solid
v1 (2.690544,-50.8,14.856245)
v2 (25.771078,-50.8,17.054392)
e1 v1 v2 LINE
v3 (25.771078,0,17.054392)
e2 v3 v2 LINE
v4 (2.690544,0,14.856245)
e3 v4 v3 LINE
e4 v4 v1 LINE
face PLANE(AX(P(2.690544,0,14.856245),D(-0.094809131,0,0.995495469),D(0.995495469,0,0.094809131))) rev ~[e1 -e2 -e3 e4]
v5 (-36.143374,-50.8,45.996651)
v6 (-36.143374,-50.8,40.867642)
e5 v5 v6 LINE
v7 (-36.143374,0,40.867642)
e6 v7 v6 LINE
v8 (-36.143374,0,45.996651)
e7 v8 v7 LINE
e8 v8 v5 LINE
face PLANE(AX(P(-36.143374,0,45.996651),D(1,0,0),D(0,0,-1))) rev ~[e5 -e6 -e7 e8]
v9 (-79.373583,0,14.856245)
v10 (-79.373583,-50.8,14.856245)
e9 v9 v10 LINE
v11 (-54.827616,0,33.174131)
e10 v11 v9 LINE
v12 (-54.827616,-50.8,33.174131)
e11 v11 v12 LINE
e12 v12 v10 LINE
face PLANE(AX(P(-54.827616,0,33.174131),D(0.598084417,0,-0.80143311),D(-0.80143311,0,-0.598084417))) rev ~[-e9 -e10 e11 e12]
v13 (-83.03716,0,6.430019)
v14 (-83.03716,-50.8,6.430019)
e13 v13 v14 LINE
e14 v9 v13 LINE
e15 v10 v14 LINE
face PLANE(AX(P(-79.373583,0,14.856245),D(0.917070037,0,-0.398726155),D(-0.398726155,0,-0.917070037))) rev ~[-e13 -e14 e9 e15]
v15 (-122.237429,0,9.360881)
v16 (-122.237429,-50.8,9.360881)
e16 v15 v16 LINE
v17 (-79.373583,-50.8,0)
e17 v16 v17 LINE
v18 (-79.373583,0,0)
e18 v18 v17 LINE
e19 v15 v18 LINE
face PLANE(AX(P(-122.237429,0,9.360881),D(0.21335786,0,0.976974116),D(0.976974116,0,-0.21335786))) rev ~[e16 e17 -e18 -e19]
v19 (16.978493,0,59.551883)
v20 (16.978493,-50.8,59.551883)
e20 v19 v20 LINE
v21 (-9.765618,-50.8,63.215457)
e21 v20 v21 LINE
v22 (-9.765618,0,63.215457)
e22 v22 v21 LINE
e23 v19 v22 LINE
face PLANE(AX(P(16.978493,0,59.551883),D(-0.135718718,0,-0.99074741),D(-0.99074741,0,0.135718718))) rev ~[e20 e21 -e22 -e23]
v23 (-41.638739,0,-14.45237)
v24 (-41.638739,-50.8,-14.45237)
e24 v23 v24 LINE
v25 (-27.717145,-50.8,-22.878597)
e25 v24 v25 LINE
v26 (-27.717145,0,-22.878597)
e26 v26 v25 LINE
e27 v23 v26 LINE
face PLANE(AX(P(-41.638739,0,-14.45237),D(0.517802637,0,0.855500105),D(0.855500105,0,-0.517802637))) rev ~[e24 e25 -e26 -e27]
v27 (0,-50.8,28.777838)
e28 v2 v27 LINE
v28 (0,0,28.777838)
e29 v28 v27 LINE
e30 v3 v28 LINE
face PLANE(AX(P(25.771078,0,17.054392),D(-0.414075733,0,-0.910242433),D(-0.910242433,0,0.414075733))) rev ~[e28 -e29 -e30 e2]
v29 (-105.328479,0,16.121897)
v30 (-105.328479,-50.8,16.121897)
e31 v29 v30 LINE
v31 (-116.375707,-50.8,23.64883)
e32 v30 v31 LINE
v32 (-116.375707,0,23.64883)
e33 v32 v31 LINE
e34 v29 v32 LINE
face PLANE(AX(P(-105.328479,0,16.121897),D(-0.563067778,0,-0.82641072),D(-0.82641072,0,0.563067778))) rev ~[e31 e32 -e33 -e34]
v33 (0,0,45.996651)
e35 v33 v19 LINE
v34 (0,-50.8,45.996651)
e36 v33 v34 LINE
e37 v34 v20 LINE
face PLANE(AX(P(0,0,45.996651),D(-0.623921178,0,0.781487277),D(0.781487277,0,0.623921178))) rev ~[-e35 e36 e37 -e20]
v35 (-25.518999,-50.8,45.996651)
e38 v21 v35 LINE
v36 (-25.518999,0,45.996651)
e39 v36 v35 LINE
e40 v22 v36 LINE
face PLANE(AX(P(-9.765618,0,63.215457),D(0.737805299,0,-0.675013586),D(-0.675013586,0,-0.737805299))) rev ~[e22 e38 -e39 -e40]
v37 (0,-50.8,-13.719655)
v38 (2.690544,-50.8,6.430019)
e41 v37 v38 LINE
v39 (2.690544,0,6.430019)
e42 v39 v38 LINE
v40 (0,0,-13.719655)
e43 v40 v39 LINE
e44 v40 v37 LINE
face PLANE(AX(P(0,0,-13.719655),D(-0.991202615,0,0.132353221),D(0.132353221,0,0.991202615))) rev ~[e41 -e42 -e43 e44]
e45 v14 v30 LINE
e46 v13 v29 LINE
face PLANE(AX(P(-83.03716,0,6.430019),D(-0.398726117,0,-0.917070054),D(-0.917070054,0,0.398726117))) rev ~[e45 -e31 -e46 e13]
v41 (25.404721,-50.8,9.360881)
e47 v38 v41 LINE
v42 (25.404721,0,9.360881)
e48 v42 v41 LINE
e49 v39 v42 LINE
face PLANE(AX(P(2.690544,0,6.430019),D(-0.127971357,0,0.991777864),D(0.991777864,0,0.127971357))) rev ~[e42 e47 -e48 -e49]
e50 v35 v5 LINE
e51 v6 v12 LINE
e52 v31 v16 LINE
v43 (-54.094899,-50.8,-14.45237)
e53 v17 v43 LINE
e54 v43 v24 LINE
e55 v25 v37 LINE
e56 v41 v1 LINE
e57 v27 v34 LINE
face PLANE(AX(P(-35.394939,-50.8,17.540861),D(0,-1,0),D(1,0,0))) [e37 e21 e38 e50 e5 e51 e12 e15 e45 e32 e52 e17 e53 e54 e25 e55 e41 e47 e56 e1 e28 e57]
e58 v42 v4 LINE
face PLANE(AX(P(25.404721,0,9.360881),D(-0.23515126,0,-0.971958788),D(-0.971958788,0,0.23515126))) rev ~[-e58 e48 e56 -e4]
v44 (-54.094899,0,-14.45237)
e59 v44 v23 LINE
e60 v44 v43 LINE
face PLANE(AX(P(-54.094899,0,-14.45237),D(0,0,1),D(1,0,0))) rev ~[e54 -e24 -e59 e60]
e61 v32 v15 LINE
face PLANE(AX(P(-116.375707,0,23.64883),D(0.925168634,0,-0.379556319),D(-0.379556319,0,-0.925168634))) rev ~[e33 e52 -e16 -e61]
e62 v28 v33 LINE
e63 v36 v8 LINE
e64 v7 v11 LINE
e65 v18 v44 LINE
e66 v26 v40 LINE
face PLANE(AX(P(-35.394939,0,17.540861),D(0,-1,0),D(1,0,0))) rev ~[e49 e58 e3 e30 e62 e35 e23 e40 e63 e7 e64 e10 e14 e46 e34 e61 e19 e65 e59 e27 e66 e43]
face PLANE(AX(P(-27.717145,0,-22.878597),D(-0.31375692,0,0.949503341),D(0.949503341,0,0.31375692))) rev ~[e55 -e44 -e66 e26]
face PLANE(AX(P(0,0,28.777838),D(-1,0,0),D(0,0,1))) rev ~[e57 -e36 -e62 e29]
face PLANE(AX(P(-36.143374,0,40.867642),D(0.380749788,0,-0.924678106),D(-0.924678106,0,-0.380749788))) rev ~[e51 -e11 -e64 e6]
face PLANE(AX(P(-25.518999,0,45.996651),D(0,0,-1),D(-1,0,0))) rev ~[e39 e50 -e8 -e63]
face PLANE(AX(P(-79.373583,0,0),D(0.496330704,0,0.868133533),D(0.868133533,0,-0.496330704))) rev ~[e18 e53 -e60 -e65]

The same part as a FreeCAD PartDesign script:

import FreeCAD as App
import Part
import Sketcher
from FreeCAD import Vector
Q = App.Units.Quantity


def add_polygon(sketch, points):
    """Adds a closed chain of lines whose ends are joined by coincident constraints."""
    first, n = sketch.GeometryCount, len(points)
    for a, b in zip(points, points[1:] + points[:1]):
        sketch.addGeometry(Part.LineSegment(App.Vector(*a, 0), App.Vector(*b, 0)), False)
    for i in range(n):
        sketch.addConstraint(Sketcher.Constraint("Coincident", first + i, 2, first + (i + 1) % n, 1))

doc = App.newDocument("Part")
body = doc.addObject("PartDesign::Body", "Body")

# Sketch on XZ plane
sketch1 = body.newObject("Sketcher::SketchObject", "Sketch")
sketch1.AttachmentSupport = (doc.getObject("XZ_Plane"), [""])
sketch1.MapMode = "FlatFace"
add_polygon(sketch1, [(3, 15), (26, 17), (0, 29), (0, 46), (17, 60), (-10, 63), (-26, 46), (-36, 46), (-36, 41), (-55, 33), (-79, 15), (-83, 6), (-105, 16), (-116, 24), (-122, 9), (-79, 0), (-54, -14), (-42, -14), (-28, -23), (0, -14), (3, 6), (25, 9)])  # lines 0-21
sketch1.addConstraint([
    Sketcher.Constraint("Vertical", 2),
    Sketcher.Constraint("Horizontal", 6),
    Sketcher.Constraint("Vertical", 7),
    Sketcher.Constraint("Horizontal", 16),
    Sketcher.Constraint("PointOnObject", 1, 2, -2),
    Sketcher.Constraint("PointOnObject", 14, 2, -1),
    Sketcher.Constraint("PointOnObject", 18, 2, -2),
    Sketcher.Constraint("Perpendicular", 10, 11),
    Sketcher.Constraint("Horizontal", 2, 2, 5, 2),
    Sketcher.Constraint("Horizontal", 10, 2, 19, 2),
    Sketcher.Constraint("Horizontal", 13, 2, 20, 2),
    Sketcher.Constraint("Horizontal", 9, 2, 21, 2),
    Sketcher.Constraint("Vertical", 9, 2, 14, 2),
    Sketcher.Constraint("Vertical", 19, 2, 21, 2),
    Sketcher.Constraint("DistanceX", 16, 1, 16, 2, Q("0.4904 in")),
    Sketcher.Constraint("DistanceX", 8, 2, 7, 2, Q("0.7356001 in")),
    Sketcher.Constraint("DistanceY", 7, 2, 7, 1, 5.129009),
    Sketcher.Constraint("DistanceX", 5, 2, -1, 1, 25.518999),
    Sketcher.Constraint("DistanceX", 15, 2, -1, 1, 54.094899),
    Sketcher.Constraint("DistanceX", 8, 2, 4, 2, 45.061998),
    Sketcher.Constraint("DistanceY", 12, 2, 8, 2, 9.525301),
    Sketcher.Constraint("DistanceY", 15, 2, 8, 2, 47.626501),
    Sketcher.Constraint("DistanceY", 18, 2, 21, 2, 28.5759),
    Sketcher.Constraint("Distance", 0, 23.184971),
    Sketcher.Constraint("Distance", 12, 13.367721),
    Sketcher.Constraint("Distance", 15, 29.118428),
    Sketcher.Constraint("Distance", 19, 20.328512),
    Sketcher.Constraint("DistanceX", 6, 2, 6, 1, 10.624375),
    Sketcher.Constraint("DistanceY", 2, 1, 2, 2, 17.218813),
    Sketcher.Constraint("DistanceY", -1, 1, 0, 2, 17.054392),
    Sketcher.Constraint("DistanceY", -1, 1, 2, 2, 45.996651),
    Sketcher.Constraint("DistanceY", -1, 1, 8, 2, 33.174131),
    Sketcher.Constraint("DistanceX", 10, 2, -1, 1, 83.03716),
    Sketcher.Constraint("DistanceY", -1, 1, 10, 2, 6.430019),
    Sketcher.Constraint("DistanceX", 11, 2, -1, 1, 105.328479),
    Sketcher.Constraint("DistanceX", 13, 2, -1, 1, 122.237429),
    Sketcher.Constraint("DistanceY", -1, 1, 13, 2, 9.360881),
    Sketcher.Constraint("DistanceX", -1, 1, 20, 2, 25.404721),
    Sketcher.Constraint("DistanceY", 2, 2, 3, 2, 13.555232),
    Sketcher.Constraint("DistanceX", 4, 2, 3, 2, 26.744111),
    Sketcher.Constraint("DistanceY", 1, 2, 4, 2, 34.437619),
    Sketcher.Constraint("DistanceY", 10, 2, 11, 2, 9.691878),
    Sketcher.Constraint("DistanceX", 8, 2, 17, 2, 27.110471),
    Sketcher.Constraint("DistanceY", 17, 2, 8, 2, 56.052728),
])
pad1 = body.newObject("PartDesign::Pad", "Pad")
pad1.Profile = sketch1
pad1.Length = Q("2 in")

doc.recompute()
